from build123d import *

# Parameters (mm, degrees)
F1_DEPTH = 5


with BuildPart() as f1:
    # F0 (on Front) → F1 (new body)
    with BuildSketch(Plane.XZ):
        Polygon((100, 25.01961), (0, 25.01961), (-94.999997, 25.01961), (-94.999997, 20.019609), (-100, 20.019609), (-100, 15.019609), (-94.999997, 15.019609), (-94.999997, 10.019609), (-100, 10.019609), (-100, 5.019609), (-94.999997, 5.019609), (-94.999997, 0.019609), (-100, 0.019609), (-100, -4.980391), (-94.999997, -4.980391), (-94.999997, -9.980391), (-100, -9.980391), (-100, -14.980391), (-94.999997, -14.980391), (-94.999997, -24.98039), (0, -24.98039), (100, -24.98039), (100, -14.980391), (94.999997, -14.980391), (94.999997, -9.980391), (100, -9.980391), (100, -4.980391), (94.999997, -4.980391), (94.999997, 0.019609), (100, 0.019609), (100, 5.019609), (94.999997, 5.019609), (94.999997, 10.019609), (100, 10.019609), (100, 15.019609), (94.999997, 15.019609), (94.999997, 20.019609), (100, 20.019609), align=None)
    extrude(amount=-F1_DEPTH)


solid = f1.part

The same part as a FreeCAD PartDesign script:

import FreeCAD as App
import Part
import Sketcher
from FreeCAD import Vector

doc = App.newDocument("Part")
body = doc.addObject("PartDesign::Body", "Body")

# Sketch on XZ plane
sketch1 = body.newObject("Sketcher::SketchObject", "Sketch")
sketch1.AttachmentSupport = (doc.getObject("XZ_Plane"), [""])
sketch1.MapMode = "FlatFace"
sketch1.addGeometry(Part.LineSegment(Vector(100, 25, 0), Vector(-95, 25, 0)), False)
sketch1.addGeometry(Part.LineSegment(Vector(-95, 25, 0), Vector(-95, 20, 0)), False)
sketch1.addGeometry(Part.LineSegment(Vector(-95, 20, 0), Vector(-100, 20, 0)), False)
sketch1.addGeometry(Part.LineSegment(Vector(-100, 20, 0), Vector(-100, 15, 0)), False)
sketch1.addGeometry(Part.LineSegment(Vector(-100, 15, 0), Vector(-95, 15, 0)), False)
sketch1.addGeometry(Part.LineSegment(Vector(-95, 15, 0), Vector(-95, 10, 0)), False)
sketch1.addGeometry(Part.LineSegment(Vector(-95, 10, 0), Vector(-100, 10, 0)), False)
sketch1.addGeometry(Part.LineSegment(Vector(-100, 10, 0), Vector(-100, 5, 0)), False)
sketch1.addGeometry(Part.LineSegment(Vector(-100, 5, 0), Vector(-95, 5, 0)), False)
sketch1.addGeometry(Part.LineSegment(Vector(-95, 5, 0), Vector(-95, 0, 0)), False)
sketch1.addGeometry(Part.LineSegment(Vector(-95, 0, 0), Vector(-100, 0, 0)), False)
sketch1.addGeometry(Part.LineSegment(Vector(-100, 0, 0), Vector(-100, -5, 0)), False)
sketch1.addGeometry(Part.LineSegment(Vector(-100, -5, 0), Vector(-95, -5, 0)), False)
sketch1.addGeometry(Part.LineSegment(Vector(-95, -5, 0), Vector(-95, -10, 0)), False)
sketch1.addGeometry(Part.LineSegment(Vector(-95, -10, 0), Vector(-100, -10, 0)), False)
sketch1.addGeometry(Part.LineSegment(Vector(-100, -10, 0), Vector(-100, -15, 0)), False)
sketch1.addGeometry(Part.LineSegment(Vector(-100, -15, 0), Vector(-95, -15, 0)), False)
sketch1.addGeometry(Part.LineSegment(Vector(-95, -15, 0), Vector(-95, -25, 0)), False)
sketch1.addGeometry(Part.LineSegment(Vector(-95, -25, 0), Vector(100, -25, 0)), False)
sketch1.addGeometry(Part.LineSegment(Vector(100, -25, 0), Vector(100, -15, 0)), False)
sketch1.addGeometry(Part.LineSegment(Vector(100, -15, 0), Vector(95, -15, 0)), False)
sketch1.addGeometry(Part.LineSegment(Vector(95, -15, 0), Vector(95, -10, 0)), False)
sketch1.addGeometry(Part.LineSegment(Vector(95, -10, 0), Vector(100, -10, 0)), False)
sketch1.addGeometry(Part.LineSegment(Vector(100, -10, 0), Vector(100, -5, 0)), False)
sketch1.addGeometry(Part.LineSegment(Vector(100, -5, 0), Vector(95, -5, 0)), False)
sketch1.addGeometry(Part.LineSegment(Vector(95, -5, 0), Vector(95, 0, 0)), False)
sketch1.addGeometry(Part.LineSegment(Vector(95, 0, 0), Vector(100, 0, 0)), False)
sketch1.addGeometry(Part.LineSegment(Vector(100, 0, 0), Vector(100, 5, 0)), False)
sketch1.addGeometry(Part.LineSegment(Vector(100, 5, 0), Vector(95, 5, 0)), False)
sketch1.addGeometry(Part.LineSegment(Vector(95, 5, 0), Vector(95, 10, 0)), False)
sketch1.addGeometry(Part.LineSegment(Vector(95, 10, 0), Vector(100, 10, 0)), False)
sketch1.addGeometry(Part.LineSegment(Vector(100, 10, 0), Vector(100, 15, 0)), False)
sketch1.addGeometry(Part.LineSegment(Vector(100, 15, 0), Vector(95, 15, 0)), False)
sketch1.addGeometry(Part.LineSegment(Vector(95, 15, 0), Vector(95, 20, 0)), False)
sketch1.addGeometry(Part.LineSegment(Vector(95, 20, 0), Vector(100, 20, 0)), False)
sketch1.addGeometry(Part.LineSegment(Vector(100, 20, 0), Vector(100, 25, 0)), False)
sketch1.addConstraint(Sketcher.Constraint("Coincident", 0, 2, 1, 1))
sketch1.addConstraint(Sketcher.Constraint("Coincident", 1, 2, 2, 1))
sketch1.addConstraint(Sketcher.Constraint("Coincident", 2, 2, 3, 1))
sketch1.addConstraint(Sketcher.Constraint("Coincident", 3, 2, 4, 1))
sketch1.addConstraint(Sketcher.Constraint("Coincident", 4, 2, 5, 1))
sketch1.addConstraint(Sketcher.Constraint("Coincident", 5, 2, 6, 1))
sketch1.addConstraint(Sketcher.Constraint("Coincident", 6, 2, 7, 1))
sketch1.addConstraint(Sketcher.Constraint("Coincident", 7, 2, 8, 1))
sketch1.addConstraint(Sketcher.Constraint("Coincident", 8, 2, 9, 1))
sketch1.addConstraint(Sketcher.Constraint("Coincident", 9, 2, 10, 1))
sketch1.addConstraint(Sketcher.Constraint("Coincident", 10, 2, 11, 1))
sketch1.addConstraint(Sketcher.Constraint("Coincident", 11, 2, 12, 1))
sketch1.addConstraint(Sketcher.Constraint("Coincident", 12, 2, 13, 1))
sketch1.addConstraint(Sketcher.Constraint("Coincident", 13, 2, 14, 1))
sketch1.addConstraint(Sketcher.Constraint("Coincident", 14, 2, 15, 1))
sketch1.addConstraint(Sketcher.Constraint("Coincident", 15, 2, 16, 1))
sketch1.addConstraint(Sketcher.Constraint("Coincident", 16, 2, 17, 1))
sketch1.addConstraint(Sketcher.Constraint("Coincident", 17, 2, 18, 1))
sketch1.addConstraint(Sketcher.Constraint("Coincident", 18, 2, 19, 1))
sketch1.addConstraint(Sketcher.Constraint("Coincident", 19, 2, 20, 1))
sketch1.addConstraint(Sketcher.Constraint("Coincident", 20, 2, 21, 1))
sketch1.addConstraint(Sketcher.Constraint("Coincident", 21, 2, 22, 1))
sketch1.addConstraint(Sketcher.Constraint("Coincident", 22, 2, 23, 1))
sketch1.addConstraint(Sketcher.Constraint("Coincident", 23, 2, 24, 1))
sketch1.addConstraint(Sketcher.Constraint("Coincident", 24, 2, 25, 1))
sketch1.addConstraint(Sketcher.Constraint("Coincident", 25, 2, 26, 1))
sketch1.addConstraint(Sketcher.Constraint("Coincident", 26, 2, 27, 1))
sketch1.addConstraint(Sketcher.Constraint("Coincident", 27, 2, 28, 1))
sketch1.addConstraint(Sketcher.Constraint("Coincident", 28, 2, 29, 1))
sketch1.addConstraint(Sketcher.Constraint("Coincident", 29, 2, 30, 1))
sketch1.addConstraint(Sketcher.Constraint("Coincident", 30, 2, 31, 1))
sketch1.addConstraint(Sketcher.Constraint("Coincident", 31, 2, 32, 1))
sketch1.addConstraint(Sketcher.Constraint("Coincident", 32, 2, 33, 1))
sketch1.addConstraint(Sketcher.Constraint("Coincident", 33, 2, 34, 1))
sketch1.addConstraint(Sketcher.Constraint("Coincident", 34, 2, 35, 1))
sketch1.addConstraint(Sketcher.Constraint("Coincident", 35, 2, 0, 1))
sketch1.addConstraint(Sketcher.Constraint("Horizontal", 0))
sketch1.addConstraint(Sketcher.Constraint("Vertical", 1))
sketch1.addConstraint(Sketcher.Constraint("Horizontal", 2))
sketch1.addConstraint(Sketcher.Constraint("Vertical", 3))
sketch1.addConstraint(Sketcher.Constraint("Horizontal", 4))
sketch1.addConstraint(Sketcher.Constraint("Vertical", 5))
sketch1.addConstraint(Sketcher.Constraint("Horizontal", 6))
sketch1.addConstraint(Sketcher.Constraint("Vertical", 7))
sketch1.addConstraint(Sketcher.Constraint("Horizontal", 8))
sketch1.addConstraint(Sketcher.Constraint("Vertical", 9))
sketch1.addConstraint(Sketcher.Constraint("Horizontal", 10))
sketch1.addConstraint(Sketcher.Constraint("Vertical", 11))
sketch1.addConstraint(Sketcher.Constraint("Horizontal", 12))
sketch1.addConstraint(Sketcher.Constraint("Vertical", 13))
sketch1.addConstraint(Sketcher.Constraint("Horizontal", 14))
sketch1.addConstraint(Sketcher.Constraint("Vertical", 15))
sketch1.addConstraint(Sketcher.Constraint("Horizontal", 16))
sketch1.addConstraint(Sketcher.Constraint("Vertical", 17))
sketch1.addConstraint(Sketcher.Constraint("Horizontal", 18))
sketch1.addConstraint(Sketcher.Constraint("Vertical", 19))
sketch1.addConstraint(Sketcher.Constraint("Horizontal", 20))
sketch1.addConstraint(Sketcher.Constraint("Vertical", 21))
sketch1.addConstraint(Sketcher.Constraint("Horizontal", 22))
sketch1.addConstraint(Sketcher.Constraint("Vertical", 23))
sketch1.addConstraint(Sketcher.Constraint("Horizontal", 24))
sketch1.addConstraint(Sketcher.Constraint("Vertical", 25))
sketch1.addConstraint(Sketcher.Constraint("Horizontal", 26))
sketch1.addConstraint(Sketcher.Constraint("Vertical", 27))
sketch1.addConstraint(Sketcher.Constraint("Horizontal", 28))
sketch1.addConstraint(Sketcher.Constraint("Vertical", 29))
sketch1.addConstraint(Sketcher.Constraint("Horizontal", 30))
sketch1.addConstraint(Sketcher.Constraint("Vertical", 31))
sketch1.addConstraint(Sketcher.Constraint("Horizontal", 32))
sketch1.addConstraint(Sketcher.Constraint("Vertical", 33))
sketch1.addConstraint(Sketcher.Constraint("Horizontal", 34))
sketch1.addConstraint(Sketcher.Constraint("Vertical", 35))
sketch1.addConstraint(Sketcher.Constraint("Symmetric", 15, 2, 19, 2, -2))
sketch1.addConstraint(Sketcher.Constraint("Symmetric", 13, 2, 21, 2, -2))
sketch1.addConstraint(Sketcher.Constraint("Symmetric", 11, 2, 23, 2, -2))
sketch1.addConstraint(Sketcher.Constraint("Symmetric", 9, 2, 25, 2, -2))
sketch1.addConstraint(Sketcher.Constraint("Symmetric", 7, 2, 27, 2, -2))
sketch1.addConstraint(Sketcher.Constraint("Symmetric", 5, 2, 29, 2, -2))
sketch1.addConstraint(Sketcher.Constraint("Symmetric", 3, 2, 31, 2, -2))
sketch1.addConstraint(Sketcher.Constraint("Symmetric", 1, 2, 33, 2, -2))
sketch1.addConstraint(Sketcher.Constraint("Vertical", 1, 2, 4, 2))
sketch1.addConstraint(Sketcher.Constraint("Vertical", 3, 2, 6, 2))
sketch1.addConstraint(Sketcher.Constraint("Vertical", 5, 2, 8, 2))
sketch1.addConstraint(Sketcher.Constraint("Vertical", 7, 2, 10, 2))
sketch1.addConstraint(Sketcher.Constraint("Vertical", 9, 2, 12, 2))
sketch1.addConstraint(Sketcher.Constraint("Vertical", 11, 2, 14, 2))
sketch1.addConstraint(Sketcher.Constraint("Vertical", 13, 2, 16, 2))
sketch1.addConstraint(Sketcher.Constraint("Vertical", 31, 2, 34, 2))
sketch1.addConstraint(Sketcher.Constraint("Equal", 1, 3))
sketch1.addConstraint(Sketcher.Constraint("Equal", 3, 5))
sketch1.addConstraint(Sketcher.Constraint("Equal", 5, 7))
sketch1.addConstraint(Sketcher.Constraint("Equal", 7, 9))
sketch1.addConstraint(Sketcher.Constraint("Equal", 9, 11))
sketch1.addConstraint(Sketcher.Constraint("Equal", 11, 13))
sketch1.addConstraint(Sketcher.Constraint("Equal", 13, 15))
sketch1.addConstraint(Sketcher.Constraint("DistanceY", 1, 2, 1, 1, 5.000001))
sketch1.addConstraint(Sketcher.Constraint("DistanceY", 17, 2, 17, 1, 9.999999))
sketch1.addConstraint(Sketcher.Constraint("DistanceX", 2, 2, -1, 1, 100.0))
sketch1.addConstraint(Sketcher.Constraint("DistanceX", 0, 2, 0, 1, 194.999997))
sketch1.addConstraint(Sketcher.Constraint("DistanceY", -1, 1, 0, 2, 25.01961))
pad1 = body.newObject("PartDesign::Pad", "Pad")
pad1.Profile = sketch1
pad1.Length = 5
pad1.Reversed = True

doc.recompute()
